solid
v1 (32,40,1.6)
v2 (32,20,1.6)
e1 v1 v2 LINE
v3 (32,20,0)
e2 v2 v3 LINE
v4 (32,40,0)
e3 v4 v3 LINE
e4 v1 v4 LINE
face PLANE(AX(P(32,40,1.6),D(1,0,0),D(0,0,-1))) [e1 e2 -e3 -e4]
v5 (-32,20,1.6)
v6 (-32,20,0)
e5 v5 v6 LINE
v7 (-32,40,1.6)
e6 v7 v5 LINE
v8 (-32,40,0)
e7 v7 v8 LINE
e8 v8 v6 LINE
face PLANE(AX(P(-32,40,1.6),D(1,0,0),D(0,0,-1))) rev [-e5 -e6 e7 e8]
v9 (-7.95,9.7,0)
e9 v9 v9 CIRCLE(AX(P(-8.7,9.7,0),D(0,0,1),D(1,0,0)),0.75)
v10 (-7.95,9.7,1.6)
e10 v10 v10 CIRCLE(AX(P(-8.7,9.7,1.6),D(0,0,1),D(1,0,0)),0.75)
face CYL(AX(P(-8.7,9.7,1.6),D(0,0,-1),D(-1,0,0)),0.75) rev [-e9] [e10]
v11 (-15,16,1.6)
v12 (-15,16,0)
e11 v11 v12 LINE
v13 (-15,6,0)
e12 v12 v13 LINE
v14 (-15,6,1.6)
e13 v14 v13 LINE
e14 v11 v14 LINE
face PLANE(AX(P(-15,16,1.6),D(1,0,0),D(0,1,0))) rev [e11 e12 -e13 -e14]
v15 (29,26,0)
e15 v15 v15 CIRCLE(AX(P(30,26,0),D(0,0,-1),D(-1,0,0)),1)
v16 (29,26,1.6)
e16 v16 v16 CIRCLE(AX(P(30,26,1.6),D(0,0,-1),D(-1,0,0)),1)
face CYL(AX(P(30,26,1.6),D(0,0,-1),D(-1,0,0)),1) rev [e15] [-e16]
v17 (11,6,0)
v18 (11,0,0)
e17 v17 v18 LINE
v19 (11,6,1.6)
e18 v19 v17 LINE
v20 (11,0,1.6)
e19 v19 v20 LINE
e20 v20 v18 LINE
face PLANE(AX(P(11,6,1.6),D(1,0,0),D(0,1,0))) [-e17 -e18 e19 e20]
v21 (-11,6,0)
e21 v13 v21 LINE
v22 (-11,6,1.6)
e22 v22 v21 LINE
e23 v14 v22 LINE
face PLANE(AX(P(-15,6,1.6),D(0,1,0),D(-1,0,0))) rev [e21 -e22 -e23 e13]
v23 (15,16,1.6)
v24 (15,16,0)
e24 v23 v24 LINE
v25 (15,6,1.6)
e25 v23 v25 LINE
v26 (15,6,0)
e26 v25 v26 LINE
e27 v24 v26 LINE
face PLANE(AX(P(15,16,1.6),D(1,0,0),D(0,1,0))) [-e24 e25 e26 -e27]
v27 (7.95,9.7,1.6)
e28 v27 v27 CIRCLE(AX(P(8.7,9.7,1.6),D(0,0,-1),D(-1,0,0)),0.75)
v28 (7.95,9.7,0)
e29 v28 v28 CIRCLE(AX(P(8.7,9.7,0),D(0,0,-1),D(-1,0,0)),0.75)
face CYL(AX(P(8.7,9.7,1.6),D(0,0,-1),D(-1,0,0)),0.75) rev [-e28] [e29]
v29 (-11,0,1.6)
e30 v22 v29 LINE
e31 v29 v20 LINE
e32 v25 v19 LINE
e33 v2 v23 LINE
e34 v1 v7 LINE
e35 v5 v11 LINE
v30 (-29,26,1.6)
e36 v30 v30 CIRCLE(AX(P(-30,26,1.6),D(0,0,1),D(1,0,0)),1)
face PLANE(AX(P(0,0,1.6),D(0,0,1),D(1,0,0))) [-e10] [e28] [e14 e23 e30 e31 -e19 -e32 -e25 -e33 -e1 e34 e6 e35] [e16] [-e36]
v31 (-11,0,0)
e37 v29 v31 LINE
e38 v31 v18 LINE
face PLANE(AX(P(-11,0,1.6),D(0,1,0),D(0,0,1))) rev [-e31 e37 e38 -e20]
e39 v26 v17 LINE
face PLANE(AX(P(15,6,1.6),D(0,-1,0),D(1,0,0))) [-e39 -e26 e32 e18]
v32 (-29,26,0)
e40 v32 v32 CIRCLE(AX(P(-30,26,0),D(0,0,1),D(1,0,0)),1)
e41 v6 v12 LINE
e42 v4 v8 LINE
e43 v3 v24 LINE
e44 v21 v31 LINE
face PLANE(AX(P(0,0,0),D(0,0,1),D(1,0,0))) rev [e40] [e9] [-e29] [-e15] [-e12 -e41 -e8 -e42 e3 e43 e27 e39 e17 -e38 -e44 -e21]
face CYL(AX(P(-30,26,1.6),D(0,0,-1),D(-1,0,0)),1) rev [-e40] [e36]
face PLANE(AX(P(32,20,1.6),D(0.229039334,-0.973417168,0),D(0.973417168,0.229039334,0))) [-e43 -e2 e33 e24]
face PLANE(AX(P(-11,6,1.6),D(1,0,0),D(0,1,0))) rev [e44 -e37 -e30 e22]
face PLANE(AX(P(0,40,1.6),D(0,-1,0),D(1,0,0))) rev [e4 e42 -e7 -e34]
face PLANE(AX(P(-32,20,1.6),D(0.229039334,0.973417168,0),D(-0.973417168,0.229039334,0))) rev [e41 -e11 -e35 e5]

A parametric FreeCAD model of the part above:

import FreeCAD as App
import Part
import Sketcher
Q = App.Units.Quantity

doc = App.newDocument("Part")
body = doc.addObject("PartDesign::Body", "Body")

# Sketch on XY plane
sketch1 = body.newObject("Sketcher::SketchObject", "Sketch")
sketch1.AttachmentSupport = (doc.getObject("XY_Plane"), [""])
sketch1.MapMode = "FlatFace"
sketch1.addGeometry(Part.LineSegment(App.Vector(0, 40, 0), App.Vector(-32, 40, 0)), False)
sketch1.addGeometry(Part.LineSegment(App.Vector(-32, 40, 0), App.Vector(-32, 20, 0)), False)
sketch1.addGeometry(Part.LineSegment(App.Vector(-32, 20, 0), App.Vector(-15, 16, 0)), False)
sketch1.addGeometry(Part.LineSegment(App.Vector(-15, 16, 0), App.Vector(-15, 6, 0)), False)
sketch1.addGeometry(Part.LineSegment(App.Vector(-15, 6, 0), App.Vector(-11, 6, 0)), False)
sketch1.addGeometry(Part.LineSegment(App.Vector(-11, 6, 0), App.Vector(-11, 0, 0)), False)
sketch1.addGeometry(Part.LineSegment(App.Vector(-11, 0, 0), App.Vector(0, 0, 0)), False)
sketch1.addGeometry(Part.LineSegment(App.Vector(0, 0, 0), App.Vector(0, 40, 0)), False)
sketch1.addGeometry(Part.Circle(App.Vector(-8.7, 9.7, 0), App.Vector(0, 0, 1), 0.75), False)
sketch1.addGeometry(Part.Circle(App.Vector(-30, 26, 0), App.Vector(0, 0, 1), 1), False)
sketch1.addConstraint(Sketcher.Constraint("Coincident", 0, 2, 1, 1))
sketch1.addConstraint(Sketcher.Constraint("Coincident", 1, 2, 2, 1))
sketch1.addConstraint(Sketcher.Constraint("Coincident", 2, 2, 3, 1))
sketch1.addConstraint(Sketcher.Constraint("Coincident", 3, 2, 4, 1))
sketch1.addConstraint(Sketcher.Constraint("Coincident", 4, 2, 5, 1))
sketch1.addConstraint(Sketcher.Constraint("Coincident", 5, 2, 6, 1))
sketch1.addConstraint(Sketcher.Constraint("Coincident", 6, 2, 7, 1))
sketch1.addConstraint(Sketcher.Constraint("Coincident", 7, 2, 0, 1))
sketch1.addConstraint(Sketcher.Constraint("Horizontal", 0))
sketch1.addConstraint(Sketcher.Constraint("Vertical", 1))
sketch1.addConstraint(Sketcher.Constraint("Vertical", 3))
sketch1.addConstraint(Sketcher.Constraint("Horizontal", 4))
sketch1.addConstraint(Sketcher.Constraint("Vertical", 5))
sketch1.addConstraint(Sketcher.Constraint("Horizontal", 6))
sketch1.addConstraint(Sketcher.Constraint("Vertical", 7))
sketch1.addConstraint(Sketcher.Constraint("Coincident", 6, 2, -1, 1))
sketch1.addConstraint(Sketcher.Constraint("Diameter", 9, Q("2 mm")))
sketch1.addConstraint(Sketcher.Constraint("Diameter", 8, Q("1.5 mm")))
sketch1.addConstraint(Sketcher.Constraint("DistanceX", 0, 2, 0, 1, Q("32 mm")))
sketch1.addConstraint(Sketcher.Constraint("DistanceX", 4, 1, 4, 2, Q("4 mm")))
sketch1.addConstraint(Sketcher.Constraint("DistanceX", 6, 1, 6, 2, Q("11 mm")))
sketch1.addConstraint(Sketcher.Constraint("DistanceY", 1, 2, 1, 1, Q("20 mm")))
sketch1.addConstraint(Sketcher.Constraint("DistanceY", 3, 2, 3, 1, Q("10 mm")))
sketch1.addConstraint(Sketcher.Constraint("DistanceY", 5, 2, 5, 1, Q("6 mm")))
sketch1.addConstraint(Sketcher.Constraint("DistanceY", 7, 1, 7, 2, Q("40 mm")))
sketch1.addConstraint(Sketcher.Constraint("DistanceX", 9, 3, -1, 1, Q("30 mm")))
sketch1.addConstraint(Sketcher.Constraint("DistanceY", -1, 1, 9, 3, Q("26 mm")))
sketch1.addConstraint(Sketcher.Constraint("DistanceX", 8, 3, -1, 1, Q("8.7 mm")))
sketch1.addConstraint(Sketcher.Constraint("DistanceY", -1, 1, 8, 3, Q("9.7 mm")))
pad1 = body.newObject("PartDesign::Pad", "Pad")
pad1.Profile = sketch1
pad1.Length = 1.6
doc.recompute()

mirrored = body.newObject("PartDesign::Mirrored", "Mirrored")
mirrored.Originals = [pad1]
mirrored.MirrorPlane = (doc.getObject("YZ_Plane"), [""])
body.Tip = mirrored

doc.recompute()
